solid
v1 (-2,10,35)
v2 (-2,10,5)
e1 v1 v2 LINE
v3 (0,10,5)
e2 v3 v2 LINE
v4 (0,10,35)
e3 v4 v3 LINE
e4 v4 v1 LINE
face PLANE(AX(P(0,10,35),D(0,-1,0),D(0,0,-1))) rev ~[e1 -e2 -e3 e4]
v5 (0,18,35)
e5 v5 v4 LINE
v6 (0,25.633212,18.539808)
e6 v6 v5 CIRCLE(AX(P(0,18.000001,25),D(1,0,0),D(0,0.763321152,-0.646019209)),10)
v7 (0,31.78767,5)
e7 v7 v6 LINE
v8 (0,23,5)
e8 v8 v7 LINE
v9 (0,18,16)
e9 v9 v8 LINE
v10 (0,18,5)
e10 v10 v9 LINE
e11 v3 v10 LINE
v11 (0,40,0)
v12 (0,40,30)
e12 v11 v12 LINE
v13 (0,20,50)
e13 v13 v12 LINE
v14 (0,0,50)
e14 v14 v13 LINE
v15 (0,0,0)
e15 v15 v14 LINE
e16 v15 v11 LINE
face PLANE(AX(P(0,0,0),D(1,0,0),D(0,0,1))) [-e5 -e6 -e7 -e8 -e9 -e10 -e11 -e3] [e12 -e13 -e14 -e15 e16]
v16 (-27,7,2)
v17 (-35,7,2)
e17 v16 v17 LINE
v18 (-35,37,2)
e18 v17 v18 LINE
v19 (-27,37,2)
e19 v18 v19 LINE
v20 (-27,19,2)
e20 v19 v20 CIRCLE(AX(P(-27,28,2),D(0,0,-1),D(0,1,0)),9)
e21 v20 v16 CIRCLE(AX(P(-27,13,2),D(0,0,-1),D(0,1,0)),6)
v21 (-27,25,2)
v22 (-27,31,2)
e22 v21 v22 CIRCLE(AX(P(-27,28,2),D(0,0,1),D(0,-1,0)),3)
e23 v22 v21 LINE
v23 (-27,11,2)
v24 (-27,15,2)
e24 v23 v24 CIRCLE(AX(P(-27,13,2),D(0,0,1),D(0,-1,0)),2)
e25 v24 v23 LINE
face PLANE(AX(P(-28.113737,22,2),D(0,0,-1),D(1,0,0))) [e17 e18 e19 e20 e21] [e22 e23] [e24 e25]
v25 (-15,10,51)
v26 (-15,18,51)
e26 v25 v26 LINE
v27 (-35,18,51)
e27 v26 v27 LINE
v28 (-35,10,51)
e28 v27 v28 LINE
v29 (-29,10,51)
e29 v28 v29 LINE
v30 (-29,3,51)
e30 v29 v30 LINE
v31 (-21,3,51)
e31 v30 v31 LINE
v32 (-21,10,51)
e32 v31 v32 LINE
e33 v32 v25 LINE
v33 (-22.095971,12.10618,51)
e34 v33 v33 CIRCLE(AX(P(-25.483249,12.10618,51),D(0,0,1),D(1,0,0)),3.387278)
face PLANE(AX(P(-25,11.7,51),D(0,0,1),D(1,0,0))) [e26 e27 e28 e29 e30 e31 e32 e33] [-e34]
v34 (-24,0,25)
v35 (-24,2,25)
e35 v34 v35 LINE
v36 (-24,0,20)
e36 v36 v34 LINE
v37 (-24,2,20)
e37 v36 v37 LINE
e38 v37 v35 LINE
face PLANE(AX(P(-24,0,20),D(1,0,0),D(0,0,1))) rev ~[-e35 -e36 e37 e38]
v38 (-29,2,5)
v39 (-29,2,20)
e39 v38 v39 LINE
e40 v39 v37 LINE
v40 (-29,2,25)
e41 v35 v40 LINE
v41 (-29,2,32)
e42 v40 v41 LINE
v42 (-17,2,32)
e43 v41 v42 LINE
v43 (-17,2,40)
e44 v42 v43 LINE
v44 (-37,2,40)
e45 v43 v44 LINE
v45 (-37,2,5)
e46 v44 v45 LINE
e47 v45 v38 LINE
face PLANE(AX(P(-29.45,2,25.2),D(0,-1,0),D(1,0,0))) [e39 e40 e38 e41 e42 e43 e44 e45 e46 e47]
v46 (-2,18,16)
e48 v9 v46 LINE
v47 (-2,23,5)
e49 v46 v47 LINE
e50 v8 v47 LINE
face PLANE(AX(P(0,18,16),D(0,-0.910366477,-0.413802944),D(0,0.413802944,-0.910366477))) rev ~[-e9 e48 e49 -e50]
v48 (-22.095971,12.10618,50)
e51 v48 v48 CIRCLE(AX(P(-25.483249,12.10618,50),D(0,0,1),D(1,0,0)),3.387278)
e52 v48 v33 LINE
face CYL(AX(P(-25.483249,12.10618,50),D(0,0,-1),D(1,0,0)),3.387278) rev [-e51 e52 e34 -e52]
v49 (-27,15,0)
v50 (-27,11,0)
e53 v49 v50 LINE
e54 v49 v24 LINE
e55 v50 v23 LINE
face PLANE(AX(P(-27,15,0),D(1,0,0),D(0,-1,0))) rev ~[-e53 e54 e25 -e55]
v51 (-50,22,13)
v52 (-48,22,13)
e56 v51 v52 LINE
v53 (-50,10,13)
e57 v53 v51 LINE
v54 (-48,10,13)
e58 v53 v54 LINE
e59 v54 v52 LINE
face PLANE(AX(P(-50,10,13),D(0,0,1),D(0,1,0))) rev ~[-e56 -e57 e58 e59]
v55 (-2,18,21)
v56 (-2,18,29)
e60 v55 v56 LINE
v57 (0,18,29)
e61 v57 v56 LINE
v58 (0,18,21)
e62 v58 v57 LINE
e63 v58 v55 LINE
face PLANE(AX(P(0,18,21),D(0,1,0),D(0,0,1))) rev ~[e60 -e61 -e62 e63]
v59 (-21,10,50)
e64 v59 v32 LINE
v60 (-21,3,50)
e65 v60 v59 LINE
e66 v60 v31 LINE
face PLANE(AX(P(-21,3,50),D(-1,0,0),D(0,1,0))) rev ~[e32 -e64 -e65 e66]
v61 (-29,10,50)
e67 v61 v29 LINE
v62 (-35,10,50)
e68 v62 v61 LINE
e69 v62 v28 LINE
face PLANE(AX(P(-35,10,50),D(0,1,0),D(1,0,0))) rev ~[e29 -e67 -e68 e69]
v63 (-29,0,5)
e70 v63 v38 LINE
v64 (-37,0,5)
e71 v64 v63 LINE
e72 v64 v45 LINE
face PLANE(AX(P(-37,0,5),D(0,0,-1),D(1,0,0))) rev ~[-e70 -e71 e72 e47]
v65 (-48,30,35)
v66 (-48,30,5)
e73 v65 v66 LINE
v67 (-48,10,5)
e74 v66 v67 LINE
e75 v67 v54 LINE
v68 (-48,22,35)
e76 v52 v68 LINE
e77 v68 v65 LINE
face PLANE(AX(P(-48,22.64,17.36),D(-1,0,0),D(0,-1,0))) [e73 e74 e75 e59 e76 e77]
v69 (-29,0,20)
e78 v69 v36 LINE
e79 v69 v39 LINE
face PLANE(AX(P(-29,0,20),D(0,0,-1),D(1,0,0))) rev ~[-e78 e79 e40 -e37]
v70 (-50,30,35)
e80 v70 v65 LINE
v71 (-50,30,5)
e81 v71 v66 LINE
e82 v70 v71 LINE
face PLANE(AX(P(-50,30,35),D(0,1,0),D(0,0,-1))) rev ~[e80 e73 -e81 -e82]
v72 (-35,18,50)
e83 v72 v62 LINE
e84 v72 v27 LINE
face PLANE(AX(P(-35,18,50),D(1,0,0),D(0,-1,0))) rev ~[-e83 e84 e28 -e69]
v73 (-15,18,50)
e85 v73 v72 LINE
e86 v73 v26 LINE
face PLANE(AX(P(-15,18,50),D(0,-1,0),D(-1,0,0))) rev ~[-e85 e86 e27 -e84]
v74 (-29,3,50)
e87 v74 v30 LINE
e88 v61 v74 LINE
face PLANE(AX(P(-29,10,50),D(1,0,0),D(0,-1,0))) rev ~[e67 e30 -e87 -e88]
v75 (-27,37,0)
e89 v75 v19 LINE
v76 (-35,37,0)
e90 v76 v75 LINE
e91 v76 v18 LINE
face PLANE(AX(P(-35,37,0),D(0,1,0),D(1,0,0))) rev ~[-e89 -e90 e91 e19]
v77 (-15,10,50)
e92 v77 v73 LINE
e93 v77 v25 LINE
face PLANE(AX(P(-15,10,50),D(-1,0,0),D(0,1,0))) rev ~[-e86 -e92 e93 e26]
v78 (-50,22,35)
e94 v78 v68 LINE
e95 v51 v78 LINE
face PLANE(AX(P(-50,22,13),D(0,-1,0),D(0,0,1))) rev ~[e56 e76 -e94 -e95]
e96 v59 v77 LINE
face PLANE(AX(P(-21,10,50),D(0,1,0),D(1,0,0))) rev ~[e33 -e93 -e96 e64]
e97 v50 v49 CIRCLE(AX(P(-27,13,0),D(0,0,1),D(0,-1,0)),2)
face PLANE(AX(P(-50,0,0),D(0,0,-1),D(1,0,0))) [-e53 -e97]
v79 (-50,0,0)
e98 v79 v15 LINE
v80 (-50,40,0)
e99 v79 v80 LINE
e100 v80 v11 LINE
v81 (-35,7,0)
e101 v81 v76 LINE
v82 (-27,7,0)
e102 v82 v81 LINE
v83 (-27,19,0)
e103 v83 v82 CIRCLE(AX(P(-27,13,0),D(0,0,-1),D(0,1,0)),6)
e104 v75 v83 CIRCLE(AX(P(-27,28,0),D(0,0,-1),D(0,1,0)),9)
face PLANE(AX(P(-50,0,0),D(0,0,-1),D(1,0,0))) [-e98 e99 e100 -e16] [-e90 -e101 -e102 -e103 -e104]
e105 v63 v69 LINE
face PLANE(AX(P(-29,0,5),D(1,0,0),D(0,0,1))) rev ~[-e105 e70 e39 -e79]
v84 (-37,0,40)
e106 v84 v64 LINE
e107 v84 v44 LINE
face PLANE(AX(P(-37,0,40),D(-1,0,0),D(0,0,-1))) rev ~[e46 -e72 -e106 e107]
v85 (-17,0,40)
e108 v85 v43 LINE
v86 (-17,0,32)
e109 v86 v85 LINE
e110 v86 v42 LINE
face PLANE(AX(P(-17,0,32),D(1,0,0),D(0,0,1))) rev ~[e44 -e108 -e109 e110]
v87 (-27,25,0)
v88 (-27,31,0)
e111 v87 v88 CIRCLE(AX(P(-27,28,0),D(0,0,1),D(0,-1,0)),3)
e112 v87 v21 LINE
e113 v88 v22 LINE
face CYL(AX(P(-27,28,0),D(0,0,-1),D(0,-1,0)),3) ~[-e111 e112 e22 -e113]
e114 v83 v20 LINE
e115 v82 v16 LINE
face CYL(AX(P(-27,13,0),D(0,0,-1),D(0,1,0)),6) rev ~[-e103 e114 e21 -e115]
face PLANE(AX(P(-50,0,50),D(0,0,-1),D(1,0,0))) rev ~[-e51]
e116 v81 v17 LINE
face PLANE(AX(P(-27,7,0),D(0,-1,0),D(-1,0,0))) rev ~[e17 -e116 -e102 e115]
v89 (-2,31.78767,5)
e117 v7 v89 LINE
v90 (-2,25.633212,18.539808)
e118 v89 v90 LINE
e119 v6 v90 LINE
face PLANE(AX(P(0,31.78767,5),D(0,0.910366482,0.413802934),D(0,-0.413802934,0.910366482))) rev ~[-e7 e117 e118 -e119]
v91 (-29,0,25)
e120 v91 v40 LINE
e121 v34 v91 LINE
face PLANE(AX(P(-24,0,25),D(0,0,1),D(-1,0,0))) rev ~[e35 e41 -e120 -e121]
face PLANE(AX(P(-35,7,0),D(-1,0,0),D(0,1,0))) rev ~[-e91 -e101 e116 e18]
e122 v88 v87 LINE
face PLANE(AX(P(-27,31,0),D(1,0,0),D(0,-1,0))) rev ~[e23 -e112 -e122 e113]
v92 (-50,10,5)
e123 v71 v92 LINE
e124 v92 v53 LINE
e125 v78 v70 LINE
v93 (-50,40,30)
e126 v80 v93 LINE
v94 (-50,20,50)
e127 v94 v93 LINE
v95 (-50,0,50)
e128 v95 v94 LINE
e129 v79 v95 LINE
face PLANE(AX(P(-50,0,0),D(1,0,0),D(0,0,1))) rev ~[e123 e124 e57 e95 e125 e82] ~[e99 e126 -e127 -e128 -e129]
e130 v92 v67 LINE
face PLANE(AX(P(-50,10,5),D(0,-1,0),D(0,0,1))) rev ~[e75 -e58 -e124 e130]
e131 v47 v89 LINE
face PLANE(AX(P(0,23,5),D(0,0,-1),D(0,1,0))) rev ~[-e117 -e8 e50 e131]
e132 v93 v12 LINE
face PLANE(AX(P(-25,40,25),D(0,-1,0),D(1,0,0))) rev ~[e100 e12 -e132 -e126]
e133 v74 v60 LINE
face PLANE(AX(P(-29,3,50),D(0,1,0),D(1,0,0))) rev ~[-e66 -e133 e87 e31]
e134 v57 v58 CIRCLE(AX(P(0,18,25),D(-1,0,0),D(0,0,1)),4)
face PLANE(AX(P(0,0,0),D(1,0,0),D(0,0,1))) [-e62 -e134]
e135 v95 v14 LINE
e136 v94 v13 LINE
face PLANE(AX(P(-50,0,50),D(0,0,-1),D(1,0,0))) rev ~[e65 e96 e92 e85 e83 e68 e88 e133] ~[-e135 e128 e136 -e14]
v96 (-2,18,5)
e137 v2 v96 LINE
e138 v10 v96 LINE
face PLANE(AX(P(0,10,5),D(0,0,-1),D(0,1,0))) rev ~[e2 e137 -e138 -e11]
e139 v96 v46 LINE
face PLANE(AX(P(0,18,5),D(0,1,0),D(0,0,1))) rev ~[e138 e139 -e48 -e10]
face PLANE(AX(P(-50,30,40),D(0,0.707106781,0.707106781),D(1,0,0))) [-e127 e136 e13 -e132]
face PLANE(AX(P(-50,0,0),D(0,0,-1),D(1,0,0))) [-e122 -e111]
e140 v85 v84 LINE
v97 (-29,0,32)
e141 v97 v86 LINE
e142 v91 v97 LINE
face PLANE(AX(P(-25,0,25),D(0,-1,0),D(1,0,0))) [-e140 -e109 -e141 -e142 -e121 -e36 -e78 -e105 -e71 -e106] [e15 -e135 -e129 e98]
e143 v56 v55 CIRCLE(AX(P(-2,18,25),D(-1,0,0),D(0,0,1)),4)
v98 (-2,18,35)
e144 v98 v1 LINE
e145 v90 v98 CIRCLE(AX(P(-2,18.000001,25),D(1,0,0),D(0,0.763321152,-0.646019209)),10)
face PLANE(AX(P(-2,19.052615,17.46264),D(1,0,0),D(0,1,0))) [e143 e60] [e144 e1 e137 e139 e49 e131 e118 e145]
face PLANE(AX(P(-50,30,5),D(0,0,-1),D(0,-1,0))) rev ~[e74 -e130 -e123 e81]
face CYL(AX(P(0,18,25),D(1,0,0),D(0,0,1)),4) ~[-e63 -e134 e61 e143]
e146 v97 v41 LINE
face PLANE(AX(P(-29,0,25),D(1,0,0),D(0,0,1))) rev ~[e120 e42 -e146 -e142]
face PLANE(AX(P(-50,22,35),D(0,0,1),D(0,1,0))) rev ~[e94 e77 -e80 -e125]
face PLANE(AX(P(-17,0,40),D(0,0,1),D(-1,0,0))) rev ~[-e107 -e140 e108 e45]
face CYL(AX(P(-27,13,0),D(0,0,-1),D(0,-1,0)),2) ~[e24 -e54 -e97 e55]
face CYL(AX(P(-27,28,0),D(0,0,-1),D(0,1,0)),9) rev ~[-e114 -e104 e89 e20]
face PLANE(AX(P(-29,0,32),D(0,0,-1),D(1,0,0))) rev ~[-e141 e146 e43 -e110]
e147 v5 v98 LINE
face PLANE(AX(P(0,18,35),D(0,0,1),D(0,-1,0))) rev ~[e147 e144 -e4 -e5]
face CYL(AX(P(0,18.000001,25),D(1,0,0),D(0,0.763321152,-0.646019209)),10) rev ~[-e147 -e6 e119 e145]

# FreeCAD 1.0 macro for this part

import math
import FreeCAD as App
import Part
import Sketcher
from FreeCAD import Vector
Q = App.Units.Quantity


def edges_at(feature, points):
    """Names of the edges that pass closest to the given points."""
    edges = feature.Shape.Edges
    near = lambda p: min(range(len(edges)), key=lambda i: edges[i].distToShape(Part.Vertex(*p))[0])
    return sorted({f"Edge{near(p) + 1}" for p in points})


def add_polygon(sketch, points):
    """Adds a closed chain of lines whose ends are joined by coincident constraints."""
    first, n = sketch.GeometryCount, len(points)
    for a, b in zip(points, points[1:] + points[:1]):
        sketch.addGeometry(Part.LineSegment(App.Vector(*a, 0), App.Vector(*b, 0)), False)
    for i in range(n):
        sketch.addConstraint(Sketcher.Constraint("Coincident", first + i, 2, first + (i + 1) % n, 1))

doc = App.newDocument("Part")
body = doc.addObject("PartDesign::Body", "Body")

# Sketch on XZ plane
sketch1 = body.newObject("Sketcher::SketchObject", "Sketch")
sketch1.AttachmentSupport = (doc.getObject("XZ_Plane"), [""])
sketch1.MapMode = "FlatFace"
add_polygon(sketch1, [(-50, 50), (-50, 0), (0, 0), (0, 50)])  # lines 0-3
sketch1.addConstraint(Sketcher.Constraint("Vertical", 0))
sketch1.addConstraint(Sketcher.Constraint("Horizontal", 1))
sketch1.addConstraint(Sketcher.Constraint("Vertical", 2))
sketch1.addConstraint(Sketcher.Constraint("Horizontal", 3))
sketch1.addConstraint(Sketcher.Constraint("Coincident", 1, 2, -1, 1))
sketch1.addConstraint(Sketcher.Constraint("Equal", 3, 0))
sketch1.addConstraint(Sketcher.Constraint("DistanceX", 1, 1, 1, 2, Q("50 mm")))
pad1 = body.newObject("PartDesign::Pad", "Pad")
pad1.Profile = sketch1
pad1.Length = 40
pad1.Reversed = True
doc.recompute()

chamfer = body.newObject("PartDesign::Chamfer", "Chamfer")
chamfer.Base = (pad1, edges_at(pad1, [(-25, 40, 50)]))
chamfer.Size = 20

# Sketch on XZ plane
sketch2 = body.newObject("Sketcher::SketchObject", "Sketch001")
sketch2.AttachmentSupport = (doc.getObject("XZ_Plane"), [""])
sketch2.MapMode = "FlatFace"
add_polygon(sketch2, [(-37, 40), (-37, 5), (-29, 5), (-29, 20), (-24, 20), (-24, 25), (-29, 25), (-29, 32), (-17, 32), (-17, 40)])  # lines 0-9
sketch2.addConstraint(Sketcher.Constraint("Vertical", 0))
sketch2.addConstraint(Sketcher.Constraint("Horizontal", 1))
sketch2.addConstraint(Sketcher.Constraint("Vertical", 2))
sketch2.addConstraint(Sketcher.Constraint("Horizontal", 3))
sketch2.addConstraint(Sketcher.Constraint("Vertical", 4))
sketch2.addConstraint(Sketcher.Constraint("Horizontal", 5))
sketch2.addConstraint(Sketcher.Constraint("Vertical", 6))
sketch2.addConstraint(Sketcher.Constraint("Horizontal", 7))
sketch2.addConstraint(Sketcher.Constraint("Vertical", 8))
sketch2.addConstraint(Sketcher.Constraint("Horizontal", 9))
sketch2.addConstraint(Sketcher.Constraint("Vertical", 2, 2, 5, 2))
sketch2.addConstraint(Sketcher.Constraint("Equal", 5, 4))
sketch2.addConstraint(Sketcher.Constraint("Equal", 1, 8))
sketch2.addConstraint(Sketcher.Constraint("DistanceX", 1, 1, 1, 2, Q("8 mm")))
sketch2.addConstraint(Sketcher.Constraint("DistanceX", 3, 1, 3, 2, Q("5 mm")))
sketch2.addConstraint(Sketcher.Constraint("DistanceX", 7, 1, 7, 2, Q("12 mm")))
sketch2.addConstraint(Sketcher.Constraint("DistanceY", 0, 2, 0, 1, Q("35 mm")))
sketch2.addConstraint(Sketcher.Constraint("DistanceY", 2, 1, 2, 2, Q("15 mm")))
sketch2.addConstraint(Sketcher.Constraint("DistanceX", 0, 2, -1, 1, Q("37 mm")))
sketch2.addConstraint(Sketcher.Constraint("DistanceY", -1, 1, 0, 2, Q("5 mm")))
pocket1 = body.newObject("PartDesign::Pocket", "Pocket")
pocket1.Profile = sketch2
pocket1.Length = 2

# Sketch on YZ plane
sketch3 = body.newObject("Sketcher::SketchObject", "Sketch002")
sketch3.AttachmentSupport = (doc.getObject("YZ_Plane"), [""])
sketch3.MapMode = "FlatFace"
sketch3.addGeometry(Part.LineSegment(Vector(10, 35, 0), Vector(10, 5, 0)), False)
sketch3.addGeometry(Part.LineSegment(Vector(10, 5, 0), Vector(18, 5, 0)), False)
sketch3.addGeometry(Part.LineSegment(Vector(18, 5, 0), Vector(18, 16, 0)), False)
sketch3.addGeometry(Part.LineSegment(Vector(18, 16, 0), Vector(23, 5, 0)), False)
sketch3.addGeometry(Part.LineSegment(Vector(23, 5, 0), Vector(31.8, 5, 0)), False)
sketch3.addGeometry(Part.LineSegment(Vector(31.8, 5, 0), Vector(25.6, 18.5, 0)), False)
sketch3.addGeometry(Part.ArcOfCircle(Part.Circle(Vector(18, 25, 0), Vector(0, 0, 1), 10), math.radians(-40), math.radians(90)), False)
sketch3.addGeometry(Part.LineSegment(Vector(18, 35, 0), Vector(10, 35, 0)), False)
sketch3.addGeometry(Part.ArcOfCircle(Part.Circle(Vector(18, 25, 0), Vector(0, 0, 1), 4), math.radians(-90), math.radians(90)), False)
sketch3.addGeometry(Part.LineSegment(Vector(18, 21, 0), Vector(18, 29, 0)), False)
sketch3.addConstraint(Sketcher.Constraint("Coincident", 0, 2, 1, 1))
sketch3.addConstraint(Sketcher.Constraint("Coincident", 1, 2, 2, 1))
sketch3.addConstraint(Sketcher.Constraint("Coincident", 2, 2, 3, 1))
sketch3.addConstraint(Sketcher.Constraint("Coincident", 3, 2, 4, 1))
sketch3.addConstraint(Sketcher.Constraint("Coincident", 4, 2, 5, 1))
sketch3.addConstraint(Sketcher.Constraint("Coincident", 5, 2, 6, 1))
sketch3.addConstraint(Sketcher.Constraint("Tangent", 6, 2, 7, 1))
sketch3.addConstraint(Sketcher.Constraint("Coincident", 7, 2, 0, 1))
sketch3.addConstraint(Sketcher.Constraint("Coincident", 8, 1, 9, 1))
sketch3.addConstraint(Sketcher.Constraint("Coincident", 9, 2, 8, 2))
sketch3.addConstraint(Sketcher.Constraint("Vertical", 0))
sketch3.addConstraint(Sketcher.Constraint("Horizontal", 1))
sketch3.addConstraint(Sketcher.Constraint("Vertical", 2))
sketch3.addConstraint(Sketcher.Constraint("Horizontal", 4))
sketch3.addConstraint(Sketcher.Constraint("Horizontal", 7))
sketch3.addConstraint(Sketcher.Constraint("Vertical", 9))
sketch3.addConstraint(Sketcher.Constraint("Coincident", 8, 3, 6, 3))
sketch3.addConstraint(Sketcher.Constraint("Parallel", 3, 5))
sketch3.addConstraint(Sketcher.Constraint("Horizontal", 1, 2, 3, 2))
sketch3.addConstraint(Sketcher.Constraint("Vertical", 8, 3, 1, 2))
sketch3.addConstraint(Sketcher.Constraint("Vertical", 6, 2, 8, 1))
sketch3.addConstraint(Sketcher.Constraint("Equal", 7, 9))
sketch3.addConstraint(Sketcher.Constraint("Radius", 6, Q("10 mm")))
sketch3.addConstraint(Sketcher.Constraint("Radius", 8, Q("4 mm")))
sketch3.addConstraint(Sketcher.Constraint("DistanceY", 0, 2, 0, 1, Q("30 mm")))
sketch3.addConstraint(Sketcher.Constraint("DistanceY", 2, 1, 2, 2, Q("11 mm")))
sketch3.addConstraint(Sketcher.Constraint("DistanceX", -1, 1, 6, 3, Q("18.000001 mm")))
sketch3.addConstraint(Sketcher.Constraint("DistanceY", -1, 1, 6, 3, Q("25 mm")))
sketch3.addConstraint(Sketcher.Constraint("DistanceX", -1, 1, 3, 2, Q("23 mm")))
sketch3.addConstraint(Sketcher.Constraint("DistanceX", 4, 1, 4, 2, Q("8.78767 mm")))
pocket2 = body.newObject("PartDesign::Pocket", "Pocket001")
pocket2.Profile = sketch3
pocket2.Length = 2

# Sketch on YZ plane
sketch4 = body.newObject("Sketcher::SketchObject", "Sketch003")
sketch4.AttachmentSupport = (doc.getObject("YZ_Plane"), [""])
sketch4.MapMode = "FlatFace"
sketch4.AttachmentOffset = App.Placement(Vector(0, 0, -50), App.Rotation())
add_polygon(sketch4, [(22, 35), (30, 35), (30, 5), (10, 5), (10, 13), (22, 13)])  # lines 0-5
sketch4.addConstraint(Sketcher.Constraint("Horizontal", 0))
sketch4.addConstraint(Sketcher.Constraint("Vertical", 1))
sketch4.addConstraint(Sketcher.Constraint("Horizontal", 2))
sketch4.addConstraint(Sketcher.Constraint("Vertical", 3))
sketch4.addConstraint(Sketcher.Constraint("Horizontal", 4))
sketch4.addConstraint(Sketcher.Constraint("Vertical", 5))
sketch4.addConstraint(Sketcher.Constraint("Equal", 0, 3))
sketch4.addConstraint(Sketcher.Constraint("DistanceX", 0, 1, 0, 2, Q("8 mm")))
sketch4.addConstraint(Sketcher.Constraint("DistanceX", 2, 2, 2, 1, Q("20 mm")))
sketch4.addConstraint(Sketcher.Constraint("DistanceY", 1, 2, 1, 1, Q("30 mm")))
sketch4.addConstraint(Sketcher.Constraint("DistanceX", -1, 1, 0, 2, Q("30 mm")))
sketch4.addConstraint(Sketcher.Constraint("DistanceY", -1, 1, 0, 2, Q("35 mm")))
pocket3 = body.newObject("PartDesign::Pocket", "Pocket002")
pocket3.Profile = sketch4
pocket3.Length = 2
pocket3.Reversed = True

# Sketch on XY plane
sketch5 = body.newObject("Sketcher::SketchObject", "Sketch004")
sketch5.AttachmentSupport = (doc.getObject("XY_Plane"), [""])
sketch5.MapMode = "FlatFace"
sketch5.AttachmentOffset = App.Placement(Vector(0, 0, 50), App.Rotation())
add_polygon(sketch5, [(-29, 10), (-29, 3), (-21, 3), (-21, 10), (-15, 10), (-15, 18), (-35, 18), (-35, 10)])  # lines 0-7
sketch5.addGeometry(Part.Circle(Vector(-25.5, 12.1, 0), Vector(0, 0, 1), 3.4), False)  # 8
sketch5.addConstraint(Sketcher.Constraint("Vertical", 0))
sketch5.addConstraint(Sketcher.Constraint("Horizontal", 1))
sketch5.addConstraint(Sketcher.Constraint("Vertical", 2))
sketch5.addConstraint(Sketcher.Constraint("Horizontal", 3))
sketch5.addConstraint(Sketcher.Constraint("Vertical", 4))
sketch5.addConstraint(Sketcher.Constraint("Horizontal", 5))
sketch5.addConstraint(Sketcher.Constraint("Vertical", 6))
sketch5.addConstraint(Sketcher.Constraint("Horizontal", 7))
sketch5.addConstraint(Sketcher.Constraint("Horizontal", 3, 2, 6, 2))
sketch5.addConstraint(Sketcher.Constraint("Equal", 3, 7))
sketch5.addConstraint(Sketcher.Constraint("Equal", 1, 4))
sketch5.addConstraint(Sketcher.Constraint("DistanceX", 1, 1, 1, 2, Q("8 mm")))
sketch5.addConstraint(Sketcher.Constraint("DistanceX", 3, 1, 3, 2, Q("6 mm")))
sketch5.addConstraint(Sketcher.Constraint("DistanceY", 0, 2, 0, 1, Q("7 mm")))
sketch5.addConstraint(Sketcher.Constraint("DistanceX", 0, 2, -1, 1, Q("29 mm")))
sketch5.addConstraint(Sketcher.Constraint("DistanceY", -1, 1, 0, 2, Q("3 mm")))
sketch5.addConstraint(Sketcher.Constraint("Diameter", 8, Q("6.774556 mm")))
sketch5.addConstraint(Sketcher.Constraint("DistanceX", 8, 3, -1, 1, Q("25.483249 mm")))
sketch5.addConstraint(Sketcher.Constraint("DistanceY", -1, 1, 8, 3, Q("12.10618 mm")))
pad2 = body.newObject("PartDesign::Pad", "Pad001")
pad2.Profile = sketch5
pad2.Length = 1

# Sketch on XY plane
sketch6 = body.newObject("Sketcher::SketchObject", "Sketch005")
sketch6.AttachmentSupport = (doc.getObject("XY_Plane"), [""])
sketch6.MapMode = "FlatFace"
sketch6.addGeometry(Part.LineSegment(Vector(-35, 7, 0), Vector(-35, 37, 0)), False)
sketch6.addGeometry(Part.LineSegment(Vector(-35, 37, 0), Vector(-27, 37, 0)), False)
sketch6.addGeometry(Part.ArcOfCircle(Part.Circle(Vector(-27, 28, 0), Vector(0, 0, 1), 9), math.radians(-90), math.radians(90)), False)
sketch6.addGeometry(Part.ArcOfCircle(Part.Circle(Vector(-27, 13, 0), Vector(0, 0, 1), 6), math.radians(-90), math.radians(90)), False)
sketch6.addGeometry(Part.LineSegment(Vector(-27, 7, 0), Vector(-35, 7, 0)), False)
sketch6.addGeometry(Part.LineSegment(Vector(-27, 31, 0), Vector(-27, 25, 0)), False)
sketch6.addGeometry(Part.ArcOfCircle(Part.Circle(Vector(-27, 28, 0), Vector(0, 0, 1), 3), math.radians(-90), math.radians(90)), False)
sketch6.addGeometry(Part.ArcOfCircle(Part.Circle(Vector(-27, 13, 0), Vector(0, 0, 1), 2), math.radians(-90), math.radians(90)), False)
sketch6.addGeometry(Part.LineSegment(Vector(-27, 15, 0), Vector(-27, 11, 0)), False)
sketch6.addConstraint(Sketcher.Constraint("Coincident", 0, 2, 1, 1))
sketch6.addConstraint(Sketcher.Constraint("Tangent", 1, 2, 2, 2))
sketch6.addConstraint(Sketcher.Constraint("Tangent", 2, 1, 3, 2))
sketch6.addConstraint(Sketcher.Constraint("Tangent", 3, 1, 4, 1))
sketch6.addConstraint(Sketcher.Constraint("Coincident", 4, 2, 0, 1))
sketch6.addConstraint(Sketcher.Constraint("Coincident", 5, 1, 6, 2))
sketch6.addConstraint(Sketcher.Constraint("Coincident", 6, 1, 5, 2))
sketch6.addConstraint(Sketcher.Constraint("Coincident", 7, 1, 8, 2))
sketch6.addConstraint(Sketcher.Constraint("Coincident", 8, 1, 7, 2))
sketch6.addConstraint(Sketcher.Constraint("Vertical", 0))
sketch6.addConstraint(Sketcher.Constraint("Horizontal", 1))
sketch6.addConstraint(Sketcher.Constraint("Horizontal", 4))
sketch6.addConstraint(Sketcher.Constraint("Vertical", 5))
sketch6.addConstraint(Sketcher.Constraint("Vertical", 8))
sketch6.addConstraint(Sketcher.Constraint("Coincident", 6, 3, 2, 3))
sketch6.addConstraint(Sketcher.Constraint("Coincident", 7, 3, 3, 3))
sketch6.addConstraint(Sketcher.Constraint("Vertical", 2, 3, 3, 3))
sketch6.addConstraint(Sketcher.Constraint("Vertical", 3, 1, 5, 1))
sketch6.addConstraint(Sketcher.Constraint("Vertical", 6, 1, 7, 1))
sketch6.addConstraint(Sketcher.Constraint("Radius", 2, Q("9 mm")))
sketch6.addConstraint(Sketcher.Constraint("Radius", 3, Q("6 mm")))
sketch6.addConstraint(Sketcher.Constraint("Radius", 6, Q("3 mm")))
sketch6.addConstraint(Sketcher.Constraint("Radius", 7, Q("2 mm")))
sketch6.addConstraint(Sketcher.Constraint("DistanceX", 1, 1, 1, 2, Q("8 mm")))
sketch6.addConstraint(Sketcher.Constraint("DistanceX", 2, 3, -1, 1, Q("27 mm")))
sketch6.addConstraint(Sketcher.Constraint("DistanceY", -1, 1, 2, 3, Q("28 mm")))
pocket4 = body.newObject("PartDesign::Pocket", "Pocket003")
pocket4.Profile = sketch6
pocket4.Length = 2
pocket4.Reversed = True

doc.recompute()
